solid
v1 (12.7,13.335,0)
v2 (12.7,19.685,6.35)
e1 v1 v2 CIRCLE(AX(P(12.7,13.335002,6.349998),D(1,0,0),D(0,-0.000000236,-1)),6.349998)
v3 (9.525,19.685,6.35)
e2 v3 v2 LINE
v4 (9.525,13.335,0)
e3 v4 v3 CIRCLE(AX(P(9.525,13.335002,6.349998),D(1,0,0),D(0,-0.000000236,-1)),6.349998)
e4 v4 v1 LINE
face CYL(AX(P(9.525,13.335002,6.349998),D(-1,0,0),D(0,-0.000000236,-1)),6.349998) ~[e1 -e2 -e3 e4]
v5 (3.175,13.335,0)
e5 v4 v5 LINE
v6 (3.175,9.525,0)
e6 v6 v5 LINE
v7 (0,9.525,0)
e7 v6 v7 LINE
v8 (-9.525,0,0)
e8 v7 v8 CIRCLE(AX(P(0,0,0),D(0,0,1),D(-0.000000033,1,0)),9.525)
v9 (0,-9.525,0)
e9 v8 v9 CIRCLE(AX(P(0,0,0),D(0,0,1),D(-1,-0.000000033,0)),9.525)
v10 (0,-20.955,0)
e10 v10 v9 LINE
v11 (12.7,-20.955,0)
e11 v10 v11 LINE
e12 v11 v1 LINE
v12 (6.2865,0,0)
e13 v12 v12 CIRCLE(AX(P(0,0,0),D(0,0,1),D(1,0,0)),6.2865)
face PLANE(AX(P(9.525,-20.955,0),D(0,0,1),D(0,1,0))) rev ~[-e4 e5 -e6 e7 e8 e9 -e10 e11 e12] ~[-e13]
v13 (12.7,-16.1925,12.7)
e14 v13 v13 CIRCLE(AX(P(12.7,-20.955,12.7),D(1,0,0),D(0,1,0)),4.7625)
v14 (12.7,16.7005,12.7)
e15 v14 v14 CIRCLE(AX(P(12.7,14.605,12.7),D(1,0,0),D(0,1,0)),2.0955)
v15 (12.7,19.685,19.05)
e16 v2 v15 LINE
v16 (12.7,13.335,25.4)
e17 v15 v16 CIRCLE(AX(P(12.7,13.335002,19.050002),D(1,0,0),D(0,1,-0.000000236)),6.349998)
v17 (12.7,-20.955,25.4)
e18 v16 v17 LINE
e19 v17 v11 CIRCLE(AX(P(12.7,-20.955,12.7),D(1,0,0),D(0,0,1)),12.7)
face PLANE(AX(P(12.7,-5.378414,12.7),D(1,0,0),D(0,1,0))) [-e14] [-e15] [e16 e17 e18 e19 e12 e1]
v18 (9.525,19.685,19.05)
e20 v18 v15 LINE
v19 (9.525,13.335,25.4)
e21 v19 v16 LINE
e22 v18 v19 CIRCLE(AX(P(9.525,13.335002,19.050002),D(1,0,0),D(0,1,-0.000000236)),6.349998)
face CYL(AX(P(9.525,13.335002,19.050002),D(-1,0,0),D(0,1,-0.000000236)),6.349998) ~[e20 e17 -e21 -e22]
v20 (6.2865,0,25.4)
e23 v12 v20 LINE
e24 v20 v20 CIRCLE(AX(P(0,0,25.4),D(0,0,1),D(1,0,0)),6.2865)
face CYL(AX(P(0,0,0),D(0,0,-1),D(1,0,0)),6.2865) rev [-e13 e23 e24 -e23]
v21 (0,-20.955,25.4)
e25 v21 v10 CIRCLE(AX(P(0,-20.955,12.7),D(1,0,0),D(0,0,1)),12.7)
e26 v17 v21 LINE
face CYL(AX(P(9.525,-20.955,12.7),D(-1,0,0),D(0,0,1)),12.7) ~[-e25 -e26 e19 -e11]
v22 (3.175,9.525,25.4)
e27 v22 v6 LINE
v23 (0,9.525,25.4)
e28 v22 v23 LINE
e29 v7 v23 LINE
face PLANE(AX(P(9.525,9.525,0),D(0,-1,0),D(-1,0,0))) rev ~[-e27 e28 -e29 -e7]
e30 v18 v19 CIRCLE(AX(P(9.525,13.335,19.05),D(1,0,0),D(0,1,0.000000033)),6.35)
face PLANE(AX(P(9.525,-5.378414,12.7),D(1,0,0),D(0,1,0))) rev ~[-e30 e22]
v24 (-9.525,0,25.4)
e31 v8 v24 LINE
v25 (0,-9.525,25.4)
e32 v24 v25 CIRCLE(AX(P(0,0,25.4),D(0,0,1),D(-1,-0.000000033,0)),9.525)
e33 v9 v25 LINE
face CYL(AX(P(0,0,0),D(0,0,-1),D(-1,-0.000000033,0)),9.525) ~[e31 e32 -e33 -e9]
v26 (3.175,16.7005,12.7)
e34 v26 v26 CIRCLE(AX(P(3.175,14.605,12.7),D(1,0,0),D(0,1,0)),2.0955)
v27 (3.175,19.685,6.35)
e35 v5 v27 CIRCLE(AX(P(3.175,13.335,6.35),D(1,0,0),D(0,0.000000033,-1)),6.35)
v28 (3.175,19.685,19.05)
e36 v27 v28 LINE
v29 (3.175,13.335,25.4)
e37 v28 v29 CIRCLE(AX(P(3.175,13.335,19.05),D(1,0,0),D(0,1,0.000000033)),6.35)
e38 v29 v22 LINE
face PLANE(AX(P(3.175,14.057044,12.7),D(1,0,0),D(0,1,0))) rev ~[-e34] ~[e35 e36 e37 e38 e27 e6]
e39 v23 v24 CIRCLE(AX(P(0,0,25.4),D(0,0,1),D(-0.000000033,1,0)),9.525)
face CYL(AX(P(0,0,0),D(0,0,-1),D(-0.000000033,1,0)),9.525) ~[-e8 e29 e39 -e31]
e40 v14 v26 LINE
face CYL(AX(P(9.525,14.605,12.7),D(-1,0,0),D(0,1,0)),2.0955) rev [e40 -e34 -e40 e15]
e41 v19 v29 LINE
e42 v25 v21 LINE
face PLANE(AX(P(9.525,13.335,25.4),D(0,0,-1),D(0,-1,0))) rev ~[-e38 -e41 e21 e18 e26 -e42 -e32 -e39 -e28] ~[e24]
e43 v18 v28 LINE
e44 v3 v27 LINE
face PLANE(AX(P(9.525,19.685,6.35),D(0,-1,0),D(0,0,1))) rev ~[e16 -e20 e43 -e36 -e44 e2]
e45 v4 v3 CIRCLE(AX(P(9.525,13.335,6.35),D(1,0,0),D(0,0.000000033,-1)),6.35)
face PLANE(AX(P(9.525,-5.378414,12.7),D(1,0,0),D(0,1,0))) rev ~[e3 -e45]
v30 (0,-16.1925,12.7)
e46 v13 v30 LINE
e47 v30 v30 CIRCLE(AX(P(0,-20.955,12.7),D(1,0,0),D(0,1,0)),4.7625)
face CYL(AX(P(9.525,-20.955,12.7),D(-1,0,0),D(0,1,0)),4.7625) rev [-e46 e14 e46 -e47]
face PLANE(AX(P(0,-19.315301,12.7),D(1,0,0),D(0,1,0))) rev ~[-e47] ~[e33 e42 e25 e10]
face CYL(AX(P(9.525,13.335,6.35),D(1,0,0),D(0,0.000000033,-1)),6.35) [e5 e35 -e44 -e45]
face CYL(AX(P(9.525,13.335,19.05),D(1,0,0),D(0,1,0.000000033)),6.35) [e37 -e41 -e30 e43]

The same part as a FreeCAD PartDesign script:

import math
import FreeCAD as App
import Part
import Sketcher
from FreeCAD import Vector
Q = App.Units.Quantity

doc = App.newDocument("Part")
body = doc.addObject("PartDesign::Body", "Body")

# Sketch on XY plane
sketch1 = doc.addObject("Sketcher::SketchObject", "Sketch")
body.addObject(sketch1)
sketch1.AttachmentSupport = (doc.XY_Plane, [""])
sketch1.MapMode = "FlatFace"
sketch1.addGeometry([
    Part.LineSegment(Vector(10, -10, 0), Vector(10, 10, 0)),  # 0
    Part.LineSegment(Vector(10, 10, 0), Vector(0, 10, 0)),  # 1
    Part.ArcOfCircle(Part.Circle(Vector(0, 0, 0), Vector(0, 0, 1), 10), math.radians(90), math.radians(180)),  # 2
    Part.ArcOfCircle(Part.Circle(Vector(0, 0, 0), Vector(0, 0, 1), 10), math.radians(-180), math.radians(-90)),  # 3
    Part.LineSegment(Vector(0, -10, 0), Vector(10, -10, 0)),  # 4
    Part.Circle(Vector(0, 0, 0), Vector(0, 0, 1), 6),  # 5
], False)
sketch1.addConstraint([
    Sketcher.Constraint("Coincident", 0, 2, 1, 1),
    Sketcher.Constraint("Tangent", 1, 2, 2, 1),
    Sketcher.Constraint("Tangent", 2, 2, 3, 1),
    Sketcher.Constraint("Tangent", 3, 2, 4, 1),
    Sketcher.Constraint("Coincident", 4, 2, 0, 1),
    Sketcher.Constraint("Vertical", 0),
    Sketcher.Constraint("Horizontal", 1),
    Sketcher.Constraint("Horizontal", 4),
    Sketcher.Constraint("Coincident", 2, 3, -1, 1),
    Sketcher.Constraint("Coincident", 5, 3, -1, 1),
    Sketcher.Constraint("Equal", 2, 3),
    Sketcher.Constraint("PointOnObject", 2, 2, -1),
    Sketcher.Constraint("Diameter", 5, Q("0.495 in")),
    Sketcher.Constraint("Radius", 2, Q("0.375 in")),
    Sketcher.Constraint("DistanceX", 1, 2, 1, 1, Q("0.375 in")),
])
pad1 = doc.addObject("PartDesign::Pad", "Pad")
body.addObject(pad1)
pad1.Profile = sketch1
pad1.Length = Q("1 in")

# Sketch on YZ plane
sketch2 = doc.addObject("Sketcher::SketchObject", "Sketch001")
body.addObject(sketch2)
sketch2.AttachmentSupport = (doc.YZ_Plane, [""])
sketch2.MapMode = "FlatFace"
sketch2.AttachmentOffset = App.Placement(Vector(0, 0, 0.375 * 25.4), App.Rotation())
sketch2.addGeometry([
    Part.LineSegment(Vector(-9.5, 25.4, 0), Vector(-21, 25.4, 0)),  # 0
    Part.ArcOfCircle(Part.Circle(Vector(-21, 12.7, 0), Vector(0, 0, 1), 12.7), math.radians(90), math.radians(270)),  # 1
    Part.LineSegment(Vector(-21, 0, 0), Vector(-9.5, 0, 0)),  # 2
    Part.LineSegment(Vector(-9.5, 0, 0), Vector(-9.5, 25.4, 0)),  # 3
    Part.Circle(Vector(-21, 12.7, 0), Vector(0, 0, 1), 4.8),  # 4
], False)
sketch2.addConstraint([
    Sketcher.Constraint("Tangent", 0, 2, 1, 1),
    Sketcher.Constraint("Tangent", 1, 2, 2, 1),
    Sketcher.Constraint("Coincident", 2, 2, 3, 1),
    Sketcher.Constraint("Coincident", 3, 2, 0, 1),
    Sketcher.Constraint("Horizontal", 0),
    Sketcher.Constraint("Horizontal", 2),
    Sketcher.Constraint("Vertical", 3),
    Sketcher.Constraint("Coincident", 4, 3, 1, 3),
    Sketcher.Constraint("PointOnObject", 1, 2, -1),
    Sketcher.Constraint("Radius", 1, Q("0.5 in")),
    Sketcher.Constraint("Diameter", 4, Q("0.375 in")),
    Sketcher.Constraint("DistanceX", 0, 2, 0, 1, Q("0.45 in")),
    Sketcher.Constraint("DistanceX", 1, 3, -1, 1, Q("0.825 in")),
])
pad2 = doc.addObject("PartDesign::Pad", "Pad001")
body.addObject(pad2)
pad2.Profile = sketch2
pad2.Length = Q("0.375 in")
pad2.Reversed = True

# Sketch on YZ plane
sketch3 = doc.addObject("Sketcher::SketchObject", "Sketch002")
body.addObject(sketch3)
sketch3.AttachmentSupport = (doc.YZ_Plane, [""])
sketch3.MapMode = "FlatFace"
sketch3.AttachmentOffset = App.Placement(Vector(0, 0, 0.375 * 25.4), App.Rotation())
sketch3.addGeometry([
    Part.LineSegment(Vector(13.3, 25.4, 0), Vector(9.5, 25.4, 0)),  # 0
    Part.LineSegment(Vector(9.5, 25.4, 0), Vector(9.5, 0, 0)),  # 1
    Part.LineSegment(Vector(9.5, 0, 0), Vector(13.3, 0, 0)),  # 2
    Part.ArcOfCircle(Part.Circle(Vector(13.3, 6.4, 0), Vector(0, 0, 1), 6.4), math.radians(-90), math.radians(0)),  # 3
    Part.LineSegment(Vector(19.7, 6.3, 0), Vector(19.7, 19.1, 0)),  # 4
    Part.ArcOfCircle(Part.Circle(Vector(13.3, 19, 0), Vector(0, 0, 1), 6.4), math.radians(0), math.radians(90)),  # 5
    Part.Circle(Vector(14.6, 12.7, 0), Vector(0, 0, 1), 2.1),  # 6
], False)
sketch3.addConstraint([
    Sketcher.Constraint("Coincident", 0, 2, 1, 1),
    Sketcher.Constraint("Coincident", 1, 2, 2, 1),
    Sketcher.Constraint("Tangent", 2, 2, 3, 1),
    Sketcher.Constraint("Tangent", 3, 2, 4, 1),
    Sketcher.Constraint("Tangent", 4, 2, 5, 1),
    Sketcher.Constraint("Tangent", 5, 2, 0, 1),
    Sketcher.Constraint("Horizontal", 0),
    Sketcher.Constraint("Vertical", 1),
    Sketcher.Constraint("Horizontal", 2),
    Sketcher.Constraint("Vertical", 4),
    Sketcher.Constraint("Equal", 3, 5),
    Sketcher.Constraint("PointOnObject", 1, 2, -1),
    Sketcher.Constraint("DistanceY", 1, 2, 1, 1, Q("1 in")),
    Sketcher.Constraint("Radius", 3, Q("0.25 in")),
    Sketcher.Constraint("Diameter", 6, Q("0.165 in")),
    Sketcher.Constraint("DistanceX", 0, 2, 0, 1, Q("0.15 in")),
    Sketcher.Constraint("DistanceY", -1, 1, 6, 3, Q("0.5 in")),
    Sketcher.Constraint("DistanceX", 0, 2, 6, 3, Q("0.2 in")),
    Sketcher.Constraint("DistanceX", -1, 1, 3, 3, Q("0.525 in")),
])
pad3 = doc.addObject("PartDesign::Pad", "Pad002")
body.addObject(pad3)
pad3.Profile = sketch3
pad3.Length = Q("0.25 in")
pad3.Reversed = True

# Sketch on YZ plane
sketch4 = doc.addObject("Sketcher::SketchObject", "Sketch003")
body.addObject(sketch4)
sketch4.AttachmentSupport = (doc.YZ_Plane, [""])
sketch4.MapMode = "FlatFace"
sketch4.AttachmentOffset = App.Placement(Vector(0, 0, 0.375 * 25.4), App.Rotation())
sketch4.addGeometry([
    Part.ArcOfCircle(Part.Circle(Vector(-21, 12.7, 0), Vector(0, 0, 1), 12.7), math.radians(90), math.radians(270)),  # 0
    Part.LineSegment(Vector(-21, 0, 0), Vector(13.3, 0, 0)),  # 1
    Part.ArcOfCircle(Part.Circle(Vector(13.3, 6.3, 0), Vector(0, 0, 1), 6.3), math.radians(-90), math.radians(0)),  # 2
    Part.LineSegment(Vector(19.7, 6.3, 0), Vector(19.7, 19.1, 0)),  # 3
    Part.ArcOfCircle(Part.Circle(Vector(13.3, 19.1, 0), Vector(0, 0, 1), 6.3), math.radians(0), math.radians(90)),  # 4
    Part.LineSegment(Vector(13.3, 25.4, 0), Vector(-21, 25.4, 0)),  # 5
    Part.Circle(Vector(-21, 12.7, 0), Vector(0, 0, 1), 4.8),  # 6
    Part.Circle(Vector(14.6, 12.7, 0), Vector(0, 0, 1), 2.1),  # 7
], False)
sketch4.addConstraint([
    Sketcher.Constraint("Tangent", 0, 2, 1, 1),
    Sketcher.Constraint("Tangent", 1, 2, 2, 1),
    Sketcher.Constraint("Tangent", 2, 2, 3, 1),
    Sketcher.Constraint("Tangent", 3, 2, 4, 1),
    Sketcher.Constraint("Tangent", 4, 2, 5, 1),
    Sketcher.Constraint("Tangent", 5, 2, 0, 1),
    Sketcher.Constraint("Horizontal", 1),
    Sketcher.Constraint("Vertical", 3),
    Sketcher.Constraint("Horizontal", 5),
    Sketcher.Constraint("Coincident", 6, 3, 0, 3),
    Sketcher.Constraint("Equal", 2, 4),
    Sketcher.Constraint("PointOnObject", 0, 2, -1),
    Sketcher.Constraint("Horizontal", 6, 3, 7, 3),
    Sketcher.Constraint("Radius", 0, Q("0.5 in")),
    Sketcher.Constraint("Radius", 2, Q("0.2499999 in")),
    Sketcher.Constraint("Diameter", 6, Q("0.375 in")),
    Sketcher.Constraint("Diameter", 7, Q("0.165 in")),
    Sketcher.Constraint("DistanceX", 1, 1, 1, 2, Q("1.35 in")),
    Sketcher.Constraint("DistanceX", 0, 3, 7, 3, Q("1.4 in")),
    Sketcher.Constraint("DistanceX", 0, 3, -1, 1, Q("0.825 in")),
])
pad4 = doc.addObject("PartDesign::Pad", "Pad003")
body.addObject(pad4)
pad4.Profile = sketch4
pad4.Length = Q("0.125 in")

doc.recompute()
